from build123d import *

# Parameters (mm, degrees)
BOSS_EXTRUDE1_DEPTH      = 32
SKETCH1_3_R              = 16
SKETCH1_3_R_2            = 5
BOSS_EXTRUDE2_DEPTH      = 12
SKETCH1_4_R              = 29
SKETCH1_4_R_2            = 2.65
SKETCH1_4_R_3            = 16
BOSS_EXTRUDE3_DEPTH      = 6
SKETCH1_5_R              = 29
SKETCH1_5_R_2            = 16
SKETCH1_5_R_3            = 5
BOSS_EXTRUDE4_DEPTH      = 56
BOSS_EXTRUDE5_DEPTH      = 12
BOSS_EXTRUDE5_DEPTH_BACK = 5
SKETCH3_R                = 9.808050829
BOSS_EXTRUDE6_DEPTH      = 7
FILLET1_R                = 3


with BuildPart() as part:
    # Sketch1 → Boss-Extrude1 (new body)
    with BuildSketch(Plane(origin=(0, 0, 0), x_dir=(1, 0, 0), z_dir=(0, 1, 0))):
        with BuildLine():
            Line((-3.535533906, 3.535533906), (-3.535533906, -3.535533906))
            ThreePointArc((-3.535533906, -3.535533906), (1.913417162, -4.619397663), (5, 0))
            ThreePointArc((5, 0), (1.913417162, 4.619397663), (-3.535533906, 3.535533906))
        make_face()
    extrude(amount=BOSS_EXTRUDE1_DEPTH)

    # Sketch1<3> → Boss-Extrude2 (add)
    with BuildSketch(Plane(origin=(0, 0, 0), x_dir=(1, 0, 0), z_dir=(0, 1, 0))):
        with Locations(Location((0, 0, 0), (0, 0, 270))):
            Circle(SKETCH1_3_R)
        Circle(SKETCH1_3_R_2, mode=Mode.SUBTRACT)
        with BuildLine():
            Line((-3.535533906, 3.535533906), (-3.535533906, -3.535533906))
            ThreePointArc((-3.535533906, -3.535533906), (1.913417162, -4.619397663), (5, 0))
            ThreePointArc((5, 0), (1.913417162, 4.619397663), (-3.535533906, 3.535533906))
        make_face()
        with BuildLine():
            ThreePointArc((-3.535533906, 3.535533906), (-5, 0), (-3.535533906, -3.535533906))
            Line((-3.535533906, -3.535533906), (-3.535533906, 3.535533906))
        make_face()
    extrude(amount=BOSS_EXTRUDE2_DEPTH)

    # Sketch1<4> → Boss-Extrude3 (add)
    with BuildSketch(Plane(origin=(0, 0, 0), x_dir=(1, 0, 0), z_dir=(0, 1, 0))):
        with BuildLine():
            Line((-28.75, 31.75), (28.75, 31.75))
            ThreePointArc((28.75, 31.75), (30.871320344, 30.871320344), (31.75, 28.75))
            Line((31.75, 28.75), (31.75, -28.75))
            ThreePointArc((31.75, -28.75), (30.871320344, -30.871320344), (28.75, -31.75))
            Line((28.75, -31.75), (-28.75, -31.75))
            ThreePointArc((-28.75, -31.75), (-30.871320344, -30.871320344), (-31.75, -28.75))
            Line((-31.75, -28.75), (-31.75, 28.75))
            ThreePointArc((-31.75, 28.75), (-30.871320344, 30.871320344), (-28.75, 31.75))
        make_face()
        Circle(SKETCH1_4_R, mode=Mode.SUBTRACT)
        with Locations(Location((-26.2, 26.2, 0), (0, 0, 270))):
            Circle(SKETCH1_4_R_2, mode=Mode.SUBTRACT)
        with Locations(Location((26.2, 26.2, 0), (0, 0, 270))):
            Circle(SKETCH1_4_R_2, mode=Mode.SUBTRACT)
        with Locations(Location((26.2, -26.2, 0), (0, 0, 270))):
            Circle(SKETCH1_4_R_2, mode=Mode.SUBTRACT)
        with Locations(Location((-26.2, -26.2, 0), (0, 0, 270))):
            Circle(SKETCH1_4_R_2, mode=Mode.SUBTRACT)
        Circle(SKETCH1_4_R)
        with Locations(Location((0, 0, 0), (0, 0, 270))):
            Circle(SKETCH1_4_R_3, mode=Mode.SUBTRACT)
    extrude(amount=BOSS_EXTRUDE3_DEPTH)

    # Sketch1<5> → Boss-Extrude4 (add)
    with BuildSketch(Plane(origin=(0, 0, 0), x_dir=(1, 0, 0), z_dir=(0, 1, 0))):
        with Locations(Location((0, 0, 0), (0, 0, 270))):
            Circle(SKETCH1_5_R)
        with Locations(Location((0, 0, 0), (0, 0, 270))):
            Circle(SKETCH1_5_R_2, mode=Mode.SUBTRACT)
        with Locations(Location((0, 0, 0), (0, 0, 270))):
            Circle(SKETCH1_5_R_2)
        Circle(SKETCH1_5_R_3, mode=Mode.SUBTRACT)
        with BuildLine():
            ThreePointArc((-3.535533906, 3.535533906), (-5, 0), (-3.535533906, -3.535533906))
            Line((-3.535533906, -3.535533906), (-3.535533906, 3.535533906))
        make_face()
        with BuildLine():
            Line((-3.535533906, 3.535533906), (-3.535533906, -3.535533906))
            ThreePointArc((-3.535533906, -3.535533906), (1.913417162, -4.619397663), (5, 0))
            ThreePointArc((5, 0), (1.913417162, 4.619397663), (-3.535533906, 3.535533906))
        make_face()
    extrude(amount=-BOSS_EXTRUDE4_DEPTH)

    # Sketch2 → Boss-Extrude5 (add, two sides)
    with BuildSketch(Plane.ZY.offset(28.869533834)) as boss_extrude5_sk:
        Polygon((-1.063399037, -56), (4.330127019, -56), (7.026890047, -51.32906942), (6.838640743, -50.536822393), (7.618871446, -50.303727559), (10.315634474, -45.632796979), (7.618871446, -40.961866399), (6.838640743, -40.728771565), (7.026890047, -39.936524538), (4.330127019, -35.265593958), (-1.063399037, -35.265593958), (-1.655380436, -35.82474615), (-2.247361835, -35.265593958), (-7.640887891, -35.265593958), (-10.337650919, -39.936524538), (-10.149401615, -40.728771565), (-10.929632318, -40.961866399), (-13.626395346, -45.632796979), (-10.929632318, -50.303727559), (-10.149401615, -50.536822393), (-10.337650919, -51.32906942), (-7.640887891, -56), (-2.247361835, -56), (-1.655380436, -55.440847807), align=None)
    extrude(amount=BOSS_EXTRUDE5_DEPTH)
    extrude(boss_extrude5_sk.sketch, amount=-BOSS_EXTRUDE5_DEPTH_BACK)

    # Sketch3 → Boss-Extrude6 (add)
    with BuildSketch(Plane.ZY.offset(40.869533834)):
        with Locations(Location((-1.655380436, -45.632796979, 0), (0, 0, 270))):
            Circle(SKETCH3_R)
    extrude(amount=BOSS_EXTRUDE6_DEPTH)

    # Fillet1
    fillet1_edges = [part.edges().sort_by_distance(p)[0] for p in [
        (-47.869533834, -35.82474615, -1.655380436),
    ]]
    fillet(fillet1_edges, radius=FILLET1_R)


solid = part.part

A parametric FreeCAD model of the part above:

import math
import FreeCAD as App
import Part
import Sketcher
from FreeCAD import Vector
Q = App.Units.Quantity


def edges_at(feature, points):
    """Names of the edges that pass closest to the given points."""
    edges = feature.Shape.Edges
    near = lambda p: min(range(len(edges)), key=lambda i: edges[i].distToShape(Part.Vertex(*p))[0])
    return sorted({f"Edge{near(p) + 1}" for p in points})

doc = App.newDocument("Part")
params = doc.addObject("Spreadsheet::Sheet", "Params")
for row, (alias, value) in enumerate([
    ("sketch1_radius", "5 mm"),
    ("pad1_length", "32 mm"),
    ("sketch2_diameter", "32 mm"),
    ("pad2_length", "12 mm"),
    ("sketch3_diameter", "32 mm"),
    ("sketch3_radius", "3 mm"),
    ("sketch3_diameter2", "5.3 mm"),
    ("sketch3_width", "57.5 mm"),
    ("pad3_length", "6 mm"),
    ("sketch4_diameter", "58 mm"),
    ("pad4_length", "56 mm"),
    ("pad5_length", "12 mm"),
    ("pad5_length2", "5 mm"),
    ("pad6_length", "7 mm"),
    ("fillet_radius", "3 mm"),
], start=1):
    params.set(f"A{row}", alias)
    params.set(f"B{row}", "=" + value)
    params.setAlias(f"B{row}", alias)

body = doc.addObject("PartDesign::Body", "Body")

# Sketch on XZ plane
sketch1 = body.newObject("Sketcher::SketchObject", "Sketch")
sketch1.AttachmentSupport = (doc.getObject("XZ_Plane"), [""])
sketch1.MapMode = "FlatFace"
sketch1.addGeometry(Part.LineSegment(Vector(-3.535534, -3.535534, 0), Vector(-3.535534, 3.535534, 0)), False)
sketch1.addGeometry(Part.ArcOfCircle(Part.Circle(Vector(0, 0, 0), Vector(0, 0, 1), 5), math.radians(0), math.radians(135)), False)
sketch1.addGeometry(Part.ArcOfCircle(Part.Circle(Vector(0, 0, 0), Vector(0, 0, 1), 5), math.radians(-135), math.radians(0)), False)
sketch1.addConstraint(Sketcher.Constraint("Coincident", 0, 2, 1, 2))
sketch1.addConstraint(Sketcher.Constraint("Tangent", 1, 1, 2, 2))
sketch1.addConstraint(Sketcher.Constraint("Coincident", 2, 1, 0, 1))
sketch1.addConstraint(Sketcher.Constraint("Vertical", 0))
sketch1.addConstraint(Sketcher.Constraint("Coincident", 1, 3, -1, 1))
sketch1.addConstraint(Sketcher.Constraint("Equal", 1, 2))
sketch1.addConstraint(Sketcher.Constraint("PointOnObject", 1, 1, -1))
sketch1.addConstraint(Sketcher.Constraint("Radius", 1, Q("5 mm")))
sketch1.addConstraint(Sketcher.Constraint("DistanceY", 0, 1, 0, 2, Q("7.071068 mm")))
sketch1.setExpression("Constraints[7]", "Params.sketch1_radius")
pad1 = body.newObject("PartDesign::Pad", "Pad")
pad1.Profile = sketch1
pad1.setExpression("Length", "Params.pad1_length")
pad1.Reversed = True

# Sketch on XZ plane
sketch2 = body.newObject("Sketcher::SketchObject", "Sketch001")
sketch2.AttachmentSupport = (doc.getObject("XZ_Plane"), [""])
sketch2.MapMode = "FlatFace"
sketch2.addGeometry(Part.Circle(Vector(0, 0, 0), Vector(0, 0, 1), 16), False)
sketch2.addConstraint(Sketcher.Constraint("Coincident", 0, 3, -1, 1))
sketch2.addConstraint(Sketcher.Constraint("Diameter", 0, Q("32 mm")))
sketch2.setExpression("Constraints[1]", "Params.sketch2_diameter")
pad2 = body.newObject("PartDesign::Pad", "Pad001")
pad2.Profile = sketch2
pad2.setExpression("Length", "Params.pad2_length")
pad2.Reversed = True

# Sketch on XZ plane
sketch3 = body.newObject("Sketcher::SketchObject", "Sketch002")
sketch3.AttachmentSupport = (doc.getObject("XZ_Plane"), [""])
sketch3.MapMode = "FlatFace"
sketch3.addGeometry(Part.LineSegment(Vector(28.75, -31.75, 0), Vector(-28.75, -31.75, 0)), False)
sketch3.addGeometry(Part.ArcOfCircle(Part.Circle(Vector(-28.75, -28.75, 0), Vector(0, 0, 1), 3), math.radians(180), math.radians(270)), False)
sketch3.addGeometry(Part.LineSegment(Vector(-31.75, -28.75, 0), Vector(-31.75, 28.75, 0)), False)
sketch3.addGeometry(Part.ArcOfCircle(Part.Circle(Vector(-28.75, 28.75, 0), Vector(0, 0, 1), 3), math.radians(90), math.radians(180)), False)
sketch3.addGeometry(Part.LineSegment(Vector(-28.75, 31.75, 0), Vector(28.75, 31.75, 0)), False)
sketch3.addGeometry(Part.ArcOfCircle(Part.Circle(Vector(28.75, 28.75, 0), Vector(0, 0, 1), 3), math.radians(0), math.radians(90)), False)
sketch3.addGeometry(Part.LineSegment(Vector(31.75, 28.75, 0), Vector(31.75, -28.75, 0)), False)
sketch3.addGeometry(Part.ArcOfCircle(Part.Circle(Vector(28.75, -28.75, 0), Vector(0, 0, 1), 3), math.radians(-90), math.radians(0)), False)
sketch3.addGeometry(Part.Circle(Vector(26.2, 26.2, 0), Vector(0, 0, 1), 2.65), False)
sketch3.addGeometry(Part.Circle(Vector(-26.2, 26.2, 0), Vector(0, 0, 1), 2.65), False)
sketch3.addGeometry(Part.Circle(Vector(26.2, -26.2, 0), Vector(0, 0, 1), 2.65), False)
sketch3.addGeometry(Part.Circle(Vector(0, 0, 0), Vector(0, 0, 1), 16), False)
sketch3.addGeometry(Part.Circle(Vector(-26.2, -26.2, 0), Vector(0, 0, 1), 2.65), False)
sketch3.addConstraint(Sketcher.Constraint("Tangent", 0, 2, 1, 2))
sketch3.addConstraint(Sketcher.Constraint("Tangent", 1, 1, 2, 1))
sketch3.addConstraint(Sketcher.Constraint("Tangent", 2, 2, 3, 2))
sketch3.addConstraint(Sketcher.Constraint("Tangent", 3, 1, 4, 1))
sketch3.addConstraint(Sketcher.Constraint("Tangent", 4, 2, 5, 2))
sketch3.addConstraint(Sketcher.Constraint("Tangent", 5, 1, 6, 1))
sketch3.addConstraint(Sketcher.Constraint("Tangent", 6, 2, 7, 2))
sketch3.addConstraint(Sketcher.Constraint("Tangent", 7, 1, 0, 1))
sketch3.addConstraint(Sketcher.Constraint("Horizontal", 0))
sketch3.addConstraint(Sketcher.Constraint("Vertical", 2))
sketch3.addConstraint(Sketcher.Constraint("Horizontal", 4))
sketch3.addConstraint(Sketcher.Constraint("Vertical", 6))
sketch3.addConstraint(Sketcher.Constraint("Coincident", 11, 3, -1, 1))
sketch3.addConstraint(Sketcher.Constraint("Equal", 1, 3))
sketch3.addConstraint(Sketcher.Constraint("Equal", 3, 5))
sketch3.addConstraint(Sketcher.Constraint("Equal", 5, 7))
sketch3.addConstraint(Sketcher.Constraint("Equal", 8, 9))
sketch3.addConstraint(Sketcher.Constraint("Equal", 9, 10))
sketch3.addConstraint(Sketcher.Constraint("Equal", 10, 12))
sketch3.addConstraint(Sketcher.Constraint("Symmetric", 1, 3, 5, 3, -1, 1))
sketch3.addConstraint(Sketcher.Constraint("Symmetric", 9, 3, 10, 3, -1, 1))
sketch3.addConstraint(Sketcher.Constraint("Symmetric", 8, 3, 12, 3, -1, 1))
sketch3.addConstraint(Sketcher.Constraint("Symmetric", 8, 3, 9, 3, -2))
sketch3.addConstraint(Sketcher.Constraint("Equal", 4, 2))
sketch3.addConstraint(Sketcher.Constraint("Diameter", 11, Q("32 mm")))
sketch3.addConstraint(Sketcher.Constraint("Radius", 1, Q("3 mm")))
sketch3.addConstraint(Sketcher.Constraint("Diameter", 8, Q("5.3 mm")))
sketch3.addConstraint(Sketcher.Constraint("DistanceX", 0, 2, 0, 1, Q("57.5 mm")))
sketch3.addConstraint(Sketcher.Constraint("DistanceX", -1, 1, 8, 3, Q("26.2 mm")))
sketch3.addConstraint(Sketcher.Constraint("DistanceY", -1, 1, 8, 3, Q("26.2 mm")))
sketch3.setExpression("Constraints[24]", "Params.sketch3_diameter")
sketch3.setExpression("Constraints[25]", "Params.sketch3_radius")
sketch3.setExpression("Constraints[26]", "Params.sketch3_diameter2")
sketch3.setExpression("Constraints[27]", "Params.sketch3_width")
pad3 = body.newObject("PartDesign::Pad", "Pad002")
pad3.Profile = sketch3
pad3.setExpression("Length", "Params.pad3_length")
pad3.Reversed = True

# Sketch on XZ plane
sketch4 = body.newObject("Sketcher::SketchObject", "Sketch003")
sketch4.AttachmentSupport = (doc.getObject("XZ_Plane"), [""])
sketch4.MapMode = "FlatFace"
sketch4.addGeometry(Part.Circle(Vector(0, 0, 0), Vector(0, 0, 1), 29), False)
sketch4.addConstraint(Sketcher.Constraint("Coincident", 0, 3, -1, 1))
sketch4.addConstraint(Sketcher.Constraint("Diameter", 0, Q("58 mm")))
sketch4.setExpression("Constraints[1]", "Params.sketch4_diameter")
pad4 = body.newObject("PartDesign::Pad", "Pad003")
pad4.Profile = sketch4
pad4.setExpression("Length", "Params.pad4_length")

# Sketch on YZ plane
sketch5 = body.newObject("Sketcher::SketchObject", "Sketch004")
sketch5.AttachmentSupport = (doc.getObject("YZ_Plane"), [""])
sketch5.MapMode = "FlatFace"
sketch5.AttachmentOffset = App.Placement(Vector(0, 0, -28.869534), App.Rotation())
sketch5.addGeometry(Part.LineSegment(Vector(-56, -1.063399, 0), Vector(-56, 4.330127, 0)), False)
sketch5.addGeometry(Part.LineSegment(Vector(-56, 4.330127, 0), Vector(-51.329069, 7.02689, 0)), False)
sketch5.addGeometry(Part.LineSegment(Vector(-51.329069, 7.02689, 0), Vector(-50.536822, 6.838641, 0)), False)
sketch5.addGeometry(Part.LineSegment(Vector(-50.536822, 6.838641, 0), Vector(-50.303728, 7.618871, 0)), False)
sketch5.addGeometry(Part.LineSegment(Vector(-50.303728, 7.618871, 0), Vector(-45.632797, 10.315634, 0)), False)
sketch5.addGeometry(Part.LineSegment(Vector(-45.632797, 10.315634, 0), Vector(-40.961866, 7.618871, 0)), False)
sketch5.addGeometry(Part.LineSegment(Vector(-40.961866, 7.618871, 0), Vector(-40.728772, 6.838641, 0)), False)
sketch5.addGeometry(Part.LineSegment(Vector(-40.728772, 6.838641, 0), Vector(-39.936525, 7.02689, 0)), False)
sketch5.addGeometry(Part.LineSegment(Vector(-39.936525, 7.02689, 0), Vector(-35.265594, 4.330127, 0)), False)
sketch5.addGeometry(Part.LineSegment(Vector(-35.265594, 4.330127, 0), Vector(-35.265594, -1.063399, 0)), False)
sketch5.addGeometry(Part.LineSegment(Vector(-35.265594, -1.063399, 0), Vector(-35.824746, -1.65538, 0)), False)
sketch5.addGeometry(Part.LineSegment(Vector(-35.824746, -1.65538, 0), Vector(-35.265594, -2.247362, 0)), False)
sketch5.addGeometry(Part.LineSegment(Vector(-35.265594, -2.247362, 0), Vector(-35.265594, -7.640888, 0)), False)
sketch5.addGeometry(Part.LineSegment(Vector(-35.265594, -7.640888, 0), Vector(-39.936525, -10.337651, 0)), False)
sketch5.addGeometry(Part.LineSegment(Vector(-39.936525, -10.337651, 0), Vector(-40.728772, -10.149402, 0)), False)
sketch5.addGeometry(Part.LineSegment(Vector(-40.728772, -10.149402, 0), Vector(-40.961866, -10.929632, 0)), False)
sketch5.addGeometry(Part.LineSegment(Vector(-40.961866, -10.929632, 0), Vector(-45.632797, -13.626395, 0)), False)
sketch5.addGeometry(Part.LineSegment(Vector(-45.632797, -13.626395, 0), Vector(-50.303728, -10.929632, 0)), False)
sketch5.addGeometry(Part.LineSegment(Vector(-50.303728, -10.929632, 0), Vector(-50.536822, -10.149402, 0)), False)
sketch5.addGeometry(Part.LineSegment(Vector(-50.536822, -10.149402, 0), Vector(-51.329069, -10.337651, 0)), False)
sketch5.addGeometry(Part.LineSegment(Vector(-51.329069, -10.337651, 0), Vector(-56, -7.640888, 0)), False)
sketch5.addGeometry(Part.LineSegment(Vector(-56, -7.640888, 0), Vector(-56, -2.247362, 0)), False)
sketch5.addGeometry(Part.LineSegment(Vector(-56, -2.247362, 0), Vector(-55.440848, -1.65538, 0)), False)
sketch5.addGeometry(Part.LineSegment(Vector(-55.440848, -1.65538, 0), Vector(-56, -1.063399, 0)), False)
sketch5.addConstraint(Sketcher.Constraint("Coincident", 0, 2, 1, 1))
sketch5.addConstraint(Sketcher.Constraint("Coincident", 1, 2, 2, 1))
sketch5.addConstraint(Sketcher.Constraint("Coincident", 2, 2, 3, 1))
sketch5.addConstraint(Sketcher.Constraint("Coincident", 3, 2, 4, 1))
sketch5.addConstraint(Sketcher.Constraint("Coincident", 4, 2, 5, 1))
sketch5.addConstraint(Sketcher.Constraint("Coincident", 5, 2, 6, 1))
sketch5.addConstraint(Sketcher.Constraint("Coincident", 6, 2, 7, 1))
sketch5.addConstraint(Sketcher.Constraint("Coincident", 7, 2, 8, 1))
sketch5.addConstraint(Sketcher.Constraint("Coincident", 8, 2, 9, 1))
sketch5.addConstraint(Sketcher.Constraint("Coincident", 9, 2, 10, 1))
sketch5.addConstraint(Sketcher.Constraint("Coincident", 10, 2, 11, 1))
sketch5.addConstraint(Sketcher.Constraint("Coincident", 11, 2, 12, 1))
sketch5.addConstraint(Sketcher.Constraint("Coincident", 12, 2, 13, 1))
sketch5.addConstraint(Sketcher.Constraint("Coincident", 13, 2, 14, 1))
sketch5.addConstraint(Sketcher.Constraint("Coincident", 14, 2, 15, 1))
sketch5.addConstraint(Sketcher.Constraint("Coincident", 15, 2, 16, 1))
sketch5.addConstraint(Sketcher.Constraint("Coincident", 16, 2, 17, 1))
sketch5.addConstraint(Sketcher.Constraint("Coincident", 17, 2, 18, 1))
sketch5.addConstraint(Sketcher.Constraint("Coincident", 18, 2, 19, 1))
sketch5.addConstraint(Sketcher.Constraint("Coincident", 19, 2, 20, 1))
sketch5.addConstraint(Sketcher.Constraint("Coincident", 20, 2, 21, 1))
sketch5.addConstraint(Sketcher.Constraint("Coincident", 21, 2, 22, 1))
sketch5.addConstraint(Sketcher.Constraint("Coincident", 22, 2, 23, 1))
sketch5.addConstraint(Sketcher.Constraint("Coincident", 23, 2, 0, 1))
sketch5.addConstraint(Sketcher.Constraint("Vertical", 0))
sketch5.addConstraint(Sketcher.Constraint("Vertical", 9))
sketch5.addConstraint(Sketcher.Constraint("Vertical", 12))
sketch5.addConstraint(Sketcher.Constraint("Vertical", 21))
sketch5.addConstraint(Sketcher.Constraint("Parallel", 1, 4))
sketch5.addConstraint(Sketcher.Constraint("Parallel", 5, 8))
sketch5.addConstraint(Sketcher.Constraint("Parallel", 4, 13))
sketch5.addConstraint(Sketcher.Constraint("Parallel", 2, 14))
sketch5.addConstraint(Sketcher.Constraint("Parallel", 3, 15))
sketch5.addConstraint(Sketcher.Constraint("Parallel", 13, 16))
sketch5.addConstraint(Sketcher.Constraint("Parallel", 8, 17))
sketch5.addConstraint(Sketcher.Constraint("Parallel", 6, 18))
sketch5.addConstraint(Sketcher.Constraint("Parallel", 7, 19))
sketch5.addConstraint(Sketcher.Constraint("Parallel", 17, 20))
sketch5.addConstraint(Sketcher.Constraint("Parallel", 10, 22))
sketch5.addConstraint(Sketcher.Constraint("Parallel", 11, 23))
sketch5.addConstraint(Sketcher.Constraint("Horizontal", 3, 2, 5, 2))
sketch5.addConstraint(Sketcher.Constraint("Horizontal", 2, 2, 6, 2))
sketch5.addConstraint(Sketcher.Constraint("Horizontal", 1, 2, 7, 2))
sketch5.addConstraint(Sketcher.Constraint("Horizontal", 0, 2, 8, 2))
sketch5.addConstraint(Sketcher.Constraint("Horizontal", 15, 2, 17, 2))
sketch5.addConstraint(Sketcher.Constraint("Horizontal", 14, 2, 18, 2))
sketch5.addConstraint(Sketcher.Constraint("Horizontal", 13, 2, 19, 2))
sketch5.addConstraint(Sketcher.Constraint("Horizontal", 12, 2, 20, 2))
sketch5.addConstraint(Sketcher.Constraint("Horizontal", 11, 2, 21, 2))
sketch5.addConstraint(Sketcher.Constraint("Horizontal", 10, 2, 22, 2))
sketch5.addConstraint(Sketcher.Constraint("Horizontal", 9, 2, 23, 2))
sketch5.addConstraint(Sketcher.Constraint("Vertical", 9, 2, 11, 2))
sketch5.addConstraint(Sketcher.Constraint("Vertical", 7, 2, 13, 2))
sketch5.addConstraint(Sketcher.Constraint("Vertical", 6, 2, 14, 2))
sketch5.addConstraint(Sketcher.Constraint("Vertical", 5, 2, 15, 2))
sketch5.addConstraint(Sketcher.Constraint("Vertical", 4, 2, 16, 2))
sketch5.addConstraint(Sketcher.Constraint("Vertical", 3, 2, 17, 2))
sketch5.addConstraint(Sketcher.Constraint("Vertical", 2, 2, 18, 2))
sketch5.addConstraint(Sketcher.Constraint("Vertical", 1, 2, 19, 2))
sketch5.addConstraint(Sketcher.Constraint("Equal", 9, 12))
sketch5.addConstraint(Sketcher.Constraint("Equal", 2, 3))
sketch5.addConstraint(Sketcher.Constraint("Equal", 1, 4))
sketch5.addConstraint(Sketcher.Constraint("Equal", 7, 10))
sketch5.addConstraint(Sketcher.Constraint("Angle", 1, Q("30 deg")))
sketch5.addConstraint(Sketcher.Constraint("DistanceX", 0, 2, -1, 1, Q("56 mm")))
sketch5.addConstraint(Sketcher.Constraint("DistanceY", 9, 2, -1, 1, Q("1.063399 mm")))
sketch5.addConstraint(Sketcher.Constraint("DistanceY", 14, 2, -1, 1, Q("10.149402 mm")))
sketch5.addConstraint(Sketcher.Constraint("DistanceY", 0, 1, 0, 2, Q("5.393526 mm")))
sketch5.addConstraint(Sketcher.Constraint("DistanceX", 1, 2, -1, 1, Q("51.329069 mm")))
sketch5.addConstraint(Sketcher.Constraint("DistanceY", -1, 1, 2, 2, Q("6.838641 mm")))
sketch5.addConstraint(Sketcher.Constraint("DistanceY", -1, 1, 3, 2, Q("7.618871 mm")))
sketch5.addConstraint(Sketcher.Constraint("DistanceX", 6, 2, -1, 1, Q("40.728772 mm")))
pad5 = body.newObject("PartDesign::Pad", "Pad004")
pad5.Profile = sketch5
pad5.Type = "TwoLengths"
pad5.setExpression("Length", "Params.pad5_length")
pad5.setExpression("Length2", "Params.pad5_length2")
pad5.Reversed = True

# Sketch on YZ plane
sketch6 = body.newObject("Sketcher::SketchObject", "Sketch005")
sketch6.AttachmentSupport = (doc.getObject("YZ_Plane"), [""])
sketch6.MapMode = "FlatFace"
sketch6.AttachmentOffset = App.Placement(Vector(0, 0, -40.869534), App.Rotation())
sketch6.addGeometry(Part.Circle(Vector(-45.632797, -1.65538, 0), Vector(0, 0, 1), 9.808051), False)
sketch6.addConstraint(Sketcher.Constraint("Diameter", 0, Q("19.616102 mm")))
sketch6.addConstraint(Sketcher.Constraint("DistanceY", 0, 3, -1, 1, Q("1.65538 mm")))
sketch6.addConstraint(Sketcher.Constraint("DistanceX", 0, 3, -1, 1, Q("45.632797 mm")))
pad6 = body.newObject("PartDesign::Pad", "Pad005")
pad6.Profile = sketch6
pad6.setExpression("Length", "Params.pad6_length")
pad6.Reversed = True
doc.recompute()

fillet = body.newObject("PartDesign::Fillet", "Fillet")
fillet.Base = (pad6, edges_at(pad6, [(-47.87, -35.825, -1.655)]))
fillet.setExpression("Radius", "Params.fillet_radius")

doc.recompute()
